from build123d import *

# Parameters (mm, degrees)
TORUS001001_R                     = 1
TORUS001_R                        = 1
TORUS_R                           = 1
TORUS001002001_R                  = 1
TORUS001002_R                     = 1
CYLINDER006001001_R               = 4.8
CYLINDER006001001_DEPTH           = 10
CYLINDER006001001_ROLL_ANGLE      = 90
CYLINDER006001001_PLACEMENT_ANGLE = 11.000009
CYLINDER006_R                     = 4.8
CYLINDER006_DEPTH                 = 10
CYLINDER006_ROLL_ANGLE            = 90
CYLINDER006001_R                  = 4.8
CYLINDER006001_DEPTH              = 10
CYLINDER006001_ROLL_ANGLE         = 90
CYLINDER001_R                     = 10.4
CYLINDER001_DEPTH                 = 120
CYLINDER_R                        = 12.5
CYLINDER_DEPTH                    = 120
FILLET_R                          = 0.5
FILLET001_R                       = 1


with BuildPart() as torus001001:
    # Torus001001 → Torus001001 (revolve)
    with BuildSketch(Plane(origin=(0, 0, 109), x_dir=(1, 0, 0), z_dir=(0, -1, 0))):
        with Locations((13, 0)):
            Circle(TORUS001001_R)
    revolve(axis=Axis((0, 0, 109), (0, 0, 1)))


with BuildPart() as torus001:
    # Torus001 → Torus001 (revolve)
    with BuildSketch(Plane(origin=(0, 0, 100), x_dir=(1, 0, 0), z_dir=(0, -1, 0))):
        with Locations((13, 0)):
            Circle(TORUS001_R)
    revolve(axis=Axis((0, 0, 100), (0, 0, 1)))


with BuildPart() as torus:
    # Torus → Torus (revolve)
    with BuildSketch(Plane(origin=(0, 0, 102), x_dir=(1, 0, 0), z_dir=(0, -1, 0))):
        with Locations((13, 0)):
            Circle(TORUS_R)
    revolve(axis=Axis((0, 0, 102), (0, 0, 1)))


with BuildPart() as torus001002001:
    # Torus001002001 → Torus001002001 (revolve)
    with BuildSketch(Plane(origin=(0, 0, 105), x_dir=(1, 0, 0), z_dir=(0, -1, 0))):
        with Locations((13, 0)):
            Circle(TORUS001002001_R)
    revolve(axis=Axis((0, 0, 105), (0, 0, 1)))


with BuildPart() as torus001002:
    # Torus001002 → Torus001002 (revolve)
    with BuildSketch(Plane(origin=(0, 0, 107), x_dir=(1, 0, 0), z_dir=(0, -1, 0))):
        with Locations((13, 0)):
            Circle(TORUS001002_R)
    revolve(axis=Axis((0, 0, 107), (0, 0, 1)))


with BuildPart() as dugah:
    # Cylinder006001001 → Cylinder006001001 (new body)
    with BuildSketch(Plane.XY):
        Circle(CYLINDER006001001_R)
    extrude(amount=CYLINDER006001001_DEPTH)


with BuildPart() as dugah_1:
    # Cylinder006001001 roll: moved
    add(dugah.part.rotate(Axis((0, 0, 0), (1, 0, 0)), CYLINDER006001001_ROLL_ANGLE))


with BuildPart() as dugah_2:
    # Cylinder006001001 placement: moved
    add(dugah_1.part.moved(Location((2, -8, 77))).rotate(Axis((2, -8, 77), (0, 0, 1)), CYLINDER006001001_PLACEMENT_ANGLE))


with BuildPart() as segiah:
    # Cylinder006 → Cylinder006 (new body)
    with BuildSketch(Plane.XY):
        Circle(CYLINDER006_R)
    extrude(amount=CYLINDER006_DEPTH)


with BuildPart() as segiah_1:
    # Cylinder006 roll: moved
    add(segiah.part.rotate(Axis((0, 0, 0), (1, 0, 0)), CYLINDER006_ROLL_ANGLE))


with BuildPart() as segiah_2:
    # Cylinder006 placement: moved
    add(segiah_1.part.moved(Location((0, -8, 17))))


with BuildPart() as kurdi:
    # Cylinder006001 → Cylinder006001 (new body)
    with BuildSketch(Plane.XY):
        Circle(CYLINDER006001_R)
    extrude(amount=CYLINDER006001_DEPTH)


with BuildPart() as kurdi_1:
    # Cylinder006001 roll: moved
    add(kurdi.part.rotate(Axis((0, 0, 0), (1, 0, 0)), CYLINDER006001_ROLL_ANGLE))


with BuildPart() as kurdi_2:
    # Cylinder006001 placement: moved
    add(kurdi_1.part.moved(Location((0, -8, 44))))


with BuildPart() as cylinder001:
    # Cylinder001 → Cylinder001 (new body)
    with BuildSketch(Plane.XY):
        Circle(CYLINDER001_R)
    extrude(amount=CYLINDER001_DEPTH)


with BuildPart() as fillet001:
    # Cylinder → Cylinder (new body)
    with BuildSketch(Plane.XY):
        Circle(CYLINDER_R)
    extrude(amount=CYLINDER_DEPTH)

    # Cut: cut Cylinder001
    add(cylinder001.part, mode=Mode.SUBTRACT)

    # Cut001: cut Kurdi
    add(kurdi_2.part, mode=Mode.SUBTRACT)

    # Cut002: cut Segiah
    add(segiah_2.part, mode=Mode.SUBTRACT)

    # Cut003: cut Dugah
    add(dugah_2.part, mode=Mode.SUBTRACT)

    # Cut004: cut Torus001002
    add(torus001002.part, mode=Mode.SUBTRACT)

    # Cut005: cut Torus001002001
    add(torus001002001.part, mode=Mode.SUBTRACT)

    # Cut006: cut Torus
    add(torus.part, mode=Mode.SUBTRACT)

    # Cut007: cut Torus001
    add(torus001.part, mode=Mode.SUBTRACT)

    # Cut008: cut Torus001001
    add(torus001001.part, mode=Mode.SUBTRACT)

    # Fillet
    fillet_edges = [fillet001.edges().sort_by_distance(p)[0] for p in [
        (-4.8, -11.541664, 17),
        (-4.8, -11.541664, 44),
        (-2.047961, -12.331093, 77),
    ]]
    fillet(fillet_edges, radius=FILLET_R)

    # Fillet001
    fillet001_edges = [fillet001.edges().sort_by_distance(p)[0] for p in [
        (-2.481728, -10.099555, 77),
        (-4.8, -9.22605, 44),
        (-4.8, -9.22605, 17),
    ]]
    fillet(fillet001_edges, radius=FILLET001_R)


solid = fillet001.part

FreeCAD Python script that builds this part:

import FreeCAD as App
import Part
import Sketcher
from FreeCAD import Vector
Q = App.Units.Quantity


def edges_at(feature, points):
    """Names of the edges that pass closest to the given points."""
    edges = feature.Shape.Edges
    near = lambda p: min(range(len(edges)), key=lambda i: edges[i].distToShape(Part.Vertex(*p))[0])
    return sorted({f"Edge{near(p) + 1}" for p in points})

doc = App.newDocument("Part")
params = doc.addObject("Spreadsheet::Sheet", "Params")
for row, (alias, value) in enumerate([
    ("sketch1_diameter", "2 mm"),
    ("revolution_angle", "360 deg"),
    ("sketch2_diameter", "2 mm"),
    ("revolution2_angle", "360 deg"),
    ("sketch3_diameter", "2 mm"),
    ("revolution3_angle", "360 deg"),
    ("sketch4_diameter", "2 mm"),
    ("revolution4_angle", "360 deg"),
    ("sketch5_diameter", "2 mm"),
    ("revolution5_angle", "360 deg"),
    ("sketch6_diameter", "9.6 mm"),
    ("pad1_length", "10 mm"),
    ("sketch7_diameter", "9.6 mm"),
    ("pad2_length", "10 mm"),
    ("sketch8_diameter", "9.6 mm"),
    ("pad3_length", "10 mm"),
    ("sketch9_diameter", "20.8 mm"),
    ("pad4_length", "120 mm"),
    ("sketch10_diameter", "25 mm"),
    ("pad5_length", "120 mm"),
    ("fillet_radius", "0.5 mm"),
    ("fillet2_radius", "1 mm"),
], start=1):
    params.set(f"A{row}", alias)
    params.set(f"B{row}", "=" + value)
    params.setAlias(f"B{row}", alias)

body = doc.addObject("PartDesign::Body", "Body")

# Sketch on XZ plane
sketch1 = body.newObject("Sketcher::SketchObject", "Sketch")
sketch1.AttachmentSupport = (doc.getObject("XZ_Plane"), [""])
sketch1.MapMode = "FlatFace"
sketch1.addGeometry(Part.Circle(Vector(13, 109, 0), Vector(0, 0, 1), 1), False)
sketch1.addConstraint([
    Sketcher.Constraint("Diameter", 0, Q("2 mm")),
    Sketcher.Constraint("DistanceX", -1, 1, 0, 3, Q("13 mm")),
    Sketcher.Constraint("DistanceY", -1, 1, 0, 3, Q("109 mm")),
])
sketch1.setExpression("Constraints[0]", "Params.sketch1_diameter")
revolution = body.newObject("PartDesign::Revolution", "Revolution")
revolution.Profile = sketch1
revolution.ReferenceAxis = (sketch1, ["V_Axis"])
revolution.setExpression("Angle", "Params.revolution_angle")
body2 = doc.addObject("PartDesign::Body", "Body001")

# Sketch on XZ plane
sketch2 = body2.newObject("Sketcher::SketchObject", "Sketch001")
sketch2.AttachmentSupport = (doc.getObject("XZ_Plane001"), [""])
sketch2.MapMode = "FlatFace"
sketch2.addGeometry(Part.Circle(Vector(13, 100, 0), Vector(0, 0, 1), 1), False)
sketch2.addConstraint([
    Sketcher.Constraint("Diameter", 0, Q("2 mm")),
    Sketcher.Constraint("DistanceX", -1, 1, 0, 3, Q("13 mm")),
    Sketcher.Constraint("DistanceY", -1, 1, 0, 3, Q("100 mm")),
])
sketch2.setExpression("Constraints[0]", "Params.sketch2_diameter")
revolution2 = body2.newObject("PartDesign::Revolution", "Revolution001")
revolution2.Profile = sketch2
revolution2.ReferenceAxis = (sketch2, ["V_Axis"])
revolution2.setExpression("Angle", "Params.revolution2_angle")
body3 = doc.addObject("PartDesign::Body", "Body002")

# Sketch on XZ plane
sketch3 = body3.newObject("Sketcher::SketchObject", "Sketch002")
sketch3.AttachmentSupport = (doc.getObject("XZ_Plane002"), [""])
sketch3.MapMode = "FlatFace"
sketch3.addGeometry(Part.Circle(Vector(13, 102, 0), Vector(0, 0, 1), 1), False)
sketch3.addConstraint([
    Sketcher.Constraint("Diameter", 0, Q("2 mm")),
    Sketcher.Constraint("DistanceX", -1, 1, 0, 3, Q("13 mm")),
    Sketcher.Constraint("DistanceY", -1, 1, 0, 3, Q("102 mm")),
])
sketch3.setExpression("Constraints[0]", "Params.sketch3_diameter")
revolution3 = body3.newObject("PartDesign::Revolution", "Revolution002")
revolution3.Profile = sketch3
revolution3.ReferenceAxis = (sketch3, ["V_Axis"])
revolution3.setExpression("Angle", "Params.revolution3_angle")
body4 = doc.addObject("PartDesign::Body", "Body003")

# Sketch on XZ plane
sketch4 = body4.newObject("Sketcher::SketchObject", "Sketch003")
sketch4.AttachmentSupport = (doc.getObject("XZ_Plane003"), [""])
sketch4.MapMode = "FlatFace"
sketch4.addGeometry(Part.Circle(Vector(13, 105, 0), Vector(0, 0, 1), 1), False)
sketch4.addConstraint([
    Sketcher.Constraint("Diameter", 0, Q("2 mm")),
    Sketcher.Constraint("DistanceX", -1, 1, 0, 3, Q("13 mm")),
    Sketcher.Constraint("DistanceY", -1, 1, 0, 3, Q("105 mm")),
])
sketch4.setExpression("Constraints[0]", "Params.sketch4_diameter")
revolution4 = body4.newObject("PartDesign::Revolution", "Revolution003")
revolution4.Profile = sketch4
revolution4.ReferenceAxis = (sketch4, ["V_Axis"])
revolution4.setExpression("Angle", "Params.revolution4_angle")
body5 = doc.addObject("PartDesign::Body", "Body004")

# Sketch on XZ plane
sketch5 = body5.newObject("Sketcher::SketchObject", "Sketch004")
sketch5.AttachmentSupport = (doc.getObject("XZ_Plane004"), [""])
sketch5.MapMode = "FlatFace"
sketch5.addGeometry(Part.Circle(Vector(13, 107, 0), Vector(0, 0, 1), 1), False)
sketch5.addConstraint([
    Sketcher.Constraint("Diameter", 0, Q("2 mm")),
    Sketcher.Constraint("DistanceX", -1, 1, 0, 3, Q("13 mm")),
    Sketcher.Constraint("DistanceY", -1, 1, 0, 3, Q("107 mm")),
])
sketch5.setExpression("Constraints[0]", "Params.sketch5_diameter")
revolution5 = body5.newObject("PartDesign::Revolution", "Revolution004")
revolution5.Profile = sketch5
revolution5.ReferenceAxis = (sketch5, ["V_Axis"])
revolution5.setExpression("Angle", "Params.revolution5_angle")
body6 = doc.addObject("PartDesign::Body", "Body005")

# Sketch on XY plane
sketch6 = body6.newObject("Sketcher::SketchObject", "Sketch005")
sketch6.AttachmentSupport = (doc.getObject("XY_Plane005"), [""])
sketch6.MapMode = "FlatFace"
sketch6.addGeometry(Part.Circle(Vector(0, 0, 0), Vector(0, 0, 1), 4.8), False)
sketch6.addConstraint([
    Sketcher.Constraint("Coincident", 0, 3, -1, 1),
    Sketcher.Constraint("Diameter", 0, Q("9.6 mm")),
])
sketch6.setExpression("Constraints[1]", "Params.sketch6_diameter")
pad1 = body6.newObject("PartDesign::Pad", "Pad")
pad1.Profile = sketch6
pad1.setExpression("Length", "Params.pad1_length")
body7 = doc.addObject("PartDesign::Body", "Body006")
doc.recompute()

body6.Placement = App.Placement(Vector(0, 0, 0), App.Rotation(Vector(1, 0, 0), 90))
boolean = body7.newObject("PartDesign::Boolean", "Boolean")
boolean.Type = "Fuse"
boolean.addObjects([body6])
body8 = doc.addObject("PartDesign::Body", "Body007")
doc.recompute()

body7.Placement = App.Placement(Vector(2, -8, 77), App.Rotation(Vector(0, 0, 1), 11.000009))
boolean2 = body8.newObject("PartDesign::Boolean", "Boolean001")
boolean2.Type = "Fuse"
boolean2.addObjects([body7])
body9 = doc.addObject("PartDesign::Body", "Body008")

# Sketch on XY plane
sketch7 = body9.newObject("Sketcher::SketchObject", "Sketch006")
sketch7.AttachmentSupport = (doc.getObject("XY_Plane008"), [""])
sketch7.MapMode = "FlatFace"
sketch7.addGeometry(Part.Circle(Vector(0, 0, 0), Vector(0, 0, 1), 4.8), False)
sketch7.addConstraint([
    Sketcher.Constraint("Coincident", 0, 3, -1, 1),
    Sketcher.Constraint("Diameter", 0, Q("9.6 mm")),
])
sketch7.setExpression("Constraints[1]", "Params.sketch7_diameter")
pad2 = body9.newObject("PartDesign::Pad", "Pad001")
pad2.Profile = sketch7
pad2.setExpression("Length", "Params.pad2_length")
body10 = doc.addObject("PartDesign::Body", "Body009")
doc.recompute()

body9.Placement = App.Placement(Vector(0, 0, 0), App.Rotation(Vector(1, 0, 0), 90))
boolean3 = body10.newObject("PartDesign::Boolean", "Boolean002")
boolean3.Type = "Fuse"
boolean3.addObjects([body9])
body11 = doc.addObject("PartDesign::Body", "Body010")
doc.recompute()

body10.Placement = App.Placement(Vector(0, -8, 17), App.Rotation(Vector(0, 0, 1), 0))
boolean4 = body11.newObject("PartDesign::Boolean", "Boolean003")
boolean4.Type = "Fuse"
boolean4.addObjects([body10])
body12 = doc.addObject("PartDesign::Body", "Body011")

# Sketch on XY plane
sketch8 = body12.newObject("Sketcher::SketchObject", "Sketch007")
sketch8.AttachmentSupport = (doc.getObject("XY_Plane011"), [""])
sketch8.MapMode = "FlatFace"
sketch8.addGeometry(Part.Circle(Vector(0, 0, 0), Vector(0, 0, 1), 4.8), False)
sketch8.addConstraint([
    Sketcher.Constraint("Coincident", 0, 3, -1, 1),
    Sketcher.Constraint("Diameter", 0, Q("9.6 mm")),
])
sketch8.setExpression("Constraints[1]", "Params.sketch8_diameter")
pad3 = body12.newObject("PartDesign::Pad", "Pad002")
pad3.Profile = sketch8
pad3.setExpression("Length", "Params.pad3_length")
body13 = doc.addObject("PartDesign::Body", "Body012")
doc.recompute()

body12.Placement = App.Placement(Vector(0, 0, 0), App.Rotation(Vector(1, 0, 0), 90))
boolean5 = body13.newObject("PartDesign::Boolean", "Boolean004")
boolean5.Type = "Fuse"
boolean5.addObjects([body12])
body14 = doc.addObject("PartDesign::Body", "Body013")
doc.recompute()

body13.Placement = App.Placement(Vector(0, -8, 44), App.Rotation(Vector(0, 0, 1), 0))
boolean6 = body14.newObject("PartDesign::Boolean", "Boolean005")
boolean6.Type = "Fuse"
boolean6.addObjects([body13])
body15 = doc.addObject("PartDesign::Body", "Body014")

# Sketch on XY plane
sketch9 = body15.newObject("Sketcher::SketchObject", "Sketch008")
sketch9.AttachmentSupport = (doc.getObject("XY_Plane014"), [""])
sketch9.MapMode = "FlatFace"
sketch9.addGeometry(Part.Circle(Vector(0, 0, 0), Vector(0, 0, 1), 10), False)
sketch9.addConstraint([
    Sketcher.Constraint("Coincident", 0, 3, -1, 1),
    Sketcher.Constraint("Diameter", 0, Q("20.8 mm")),
])
sketch9.setExpression("Constraints[1]", "Params.sketch9_diameter")
pad4 = body15.newObject("PartDesign::Pad", "Pad003")
pad4.Profile = sketch9
pad4.setExpression("Length", "Params.pad4_length")
body16 = doc.addObject("PartDesign::Body", "Body015")

# Sketch on XY plane
sketch10 = body16.newObject("Sketcher::SketchObject", "Sketch009")
sketch10.AttachmentSupport = (doc.getObject("XY_Plane015"), [""])
sketch10.MapMode = "FlatFace"
sketch10.addGeometry(Part.Circle(Vector(0, 0, 0), Vector(0, 0, 1), 12), False)
sketch10.addConstraint([
    Sketcher.Constraint("Coincident", 0, 3, -1, 1),
    Sketcher.Constraint("Diameter", 0, Q("25 mm")),
])
sketch10.setExpression("Constraints[1]", "Params.sketch10_diameter")
pad5 = body16.newObject("PartDesign::Pad", "Pad004")
pad5.Profile = sketch10
pad5.setExpression("Length", "Params.pad5_length")
doc.recompute()

boolean7 = body16.newObject("PartDesign::Boolean", "Boolean006")
boolean7.Type = "Cut"
boolean7.addObjects([body15])
doc.recompute()

boolean8 = body16.newObject("PartDesign::Boolean", "Boolean007")
boolean8.Type = "Cut"
boolean8.addObjects([body14])
doc.recompute()

boolean9 = body16.newObject("PartDesign::Boolean", "Boolean008")
boolean9.Type = "Cut"
boolean9.addObjects([body11])
doc.recompute()

boolean10 = body16.newObject("PartDesign::Boolean", "Boolean009")
boolean10.Type = "Cut"
boolean10.addObjects([body8])
doc.recompute()

boolean11 = body16.newObject("PartDesign::Boolean", "Boolean010")
boolean11.Type = "Cut"
boolean11.addObjects([body5])
doc.recompute()

boolean12 = body16.newObject("PartDesign::Boolean", "Boolean011")
boolean12.Type = "Cut"
boolean12.addObjects([body4])
doc.recompute()

boolean13 = body16.newObject("PartDesign::Boolean", "Boolean012")
boolean13.Type = "Cut"
boolean13.addObjects([body3])
doc.recompute()

boolean14 = body16.newObject("PartDesign::Boolean", "Boolean013")
boolean14.Type = "Cut"
boolean14.addObjects([body2])
doc.recompute()

boolean15 = body16.newObject("PartDesign::Boolean", "Boolean014")
boolean15.Type = "Cut"
boolean15.addObjects([body])
doc.recompute()

fillet = body16.newObject("PartDesign::Fillet", "Fillet")
fillet.Base = (boolean15, edges_at(boolean15, [(-4.8, -11.542, 17), (-4.8, -11.542, 44), (-2.048, -12.331, 77)]))
fillet.setExpression("Radius", "Params.fillet_radius")
doc.recompute()

fillet2 = body16.newObject("PartDesign::Fillet", "Fillet001")
fillet2.Base = (fillet, edges_at(fillet, [(-2.482, -10.1, 77), (-4.8, -9.226, 44), (-4.8, -9.226, 17)]))
fillet2.setExpression("Radius", "Params.fillet2_radius")

doc.recompute()
